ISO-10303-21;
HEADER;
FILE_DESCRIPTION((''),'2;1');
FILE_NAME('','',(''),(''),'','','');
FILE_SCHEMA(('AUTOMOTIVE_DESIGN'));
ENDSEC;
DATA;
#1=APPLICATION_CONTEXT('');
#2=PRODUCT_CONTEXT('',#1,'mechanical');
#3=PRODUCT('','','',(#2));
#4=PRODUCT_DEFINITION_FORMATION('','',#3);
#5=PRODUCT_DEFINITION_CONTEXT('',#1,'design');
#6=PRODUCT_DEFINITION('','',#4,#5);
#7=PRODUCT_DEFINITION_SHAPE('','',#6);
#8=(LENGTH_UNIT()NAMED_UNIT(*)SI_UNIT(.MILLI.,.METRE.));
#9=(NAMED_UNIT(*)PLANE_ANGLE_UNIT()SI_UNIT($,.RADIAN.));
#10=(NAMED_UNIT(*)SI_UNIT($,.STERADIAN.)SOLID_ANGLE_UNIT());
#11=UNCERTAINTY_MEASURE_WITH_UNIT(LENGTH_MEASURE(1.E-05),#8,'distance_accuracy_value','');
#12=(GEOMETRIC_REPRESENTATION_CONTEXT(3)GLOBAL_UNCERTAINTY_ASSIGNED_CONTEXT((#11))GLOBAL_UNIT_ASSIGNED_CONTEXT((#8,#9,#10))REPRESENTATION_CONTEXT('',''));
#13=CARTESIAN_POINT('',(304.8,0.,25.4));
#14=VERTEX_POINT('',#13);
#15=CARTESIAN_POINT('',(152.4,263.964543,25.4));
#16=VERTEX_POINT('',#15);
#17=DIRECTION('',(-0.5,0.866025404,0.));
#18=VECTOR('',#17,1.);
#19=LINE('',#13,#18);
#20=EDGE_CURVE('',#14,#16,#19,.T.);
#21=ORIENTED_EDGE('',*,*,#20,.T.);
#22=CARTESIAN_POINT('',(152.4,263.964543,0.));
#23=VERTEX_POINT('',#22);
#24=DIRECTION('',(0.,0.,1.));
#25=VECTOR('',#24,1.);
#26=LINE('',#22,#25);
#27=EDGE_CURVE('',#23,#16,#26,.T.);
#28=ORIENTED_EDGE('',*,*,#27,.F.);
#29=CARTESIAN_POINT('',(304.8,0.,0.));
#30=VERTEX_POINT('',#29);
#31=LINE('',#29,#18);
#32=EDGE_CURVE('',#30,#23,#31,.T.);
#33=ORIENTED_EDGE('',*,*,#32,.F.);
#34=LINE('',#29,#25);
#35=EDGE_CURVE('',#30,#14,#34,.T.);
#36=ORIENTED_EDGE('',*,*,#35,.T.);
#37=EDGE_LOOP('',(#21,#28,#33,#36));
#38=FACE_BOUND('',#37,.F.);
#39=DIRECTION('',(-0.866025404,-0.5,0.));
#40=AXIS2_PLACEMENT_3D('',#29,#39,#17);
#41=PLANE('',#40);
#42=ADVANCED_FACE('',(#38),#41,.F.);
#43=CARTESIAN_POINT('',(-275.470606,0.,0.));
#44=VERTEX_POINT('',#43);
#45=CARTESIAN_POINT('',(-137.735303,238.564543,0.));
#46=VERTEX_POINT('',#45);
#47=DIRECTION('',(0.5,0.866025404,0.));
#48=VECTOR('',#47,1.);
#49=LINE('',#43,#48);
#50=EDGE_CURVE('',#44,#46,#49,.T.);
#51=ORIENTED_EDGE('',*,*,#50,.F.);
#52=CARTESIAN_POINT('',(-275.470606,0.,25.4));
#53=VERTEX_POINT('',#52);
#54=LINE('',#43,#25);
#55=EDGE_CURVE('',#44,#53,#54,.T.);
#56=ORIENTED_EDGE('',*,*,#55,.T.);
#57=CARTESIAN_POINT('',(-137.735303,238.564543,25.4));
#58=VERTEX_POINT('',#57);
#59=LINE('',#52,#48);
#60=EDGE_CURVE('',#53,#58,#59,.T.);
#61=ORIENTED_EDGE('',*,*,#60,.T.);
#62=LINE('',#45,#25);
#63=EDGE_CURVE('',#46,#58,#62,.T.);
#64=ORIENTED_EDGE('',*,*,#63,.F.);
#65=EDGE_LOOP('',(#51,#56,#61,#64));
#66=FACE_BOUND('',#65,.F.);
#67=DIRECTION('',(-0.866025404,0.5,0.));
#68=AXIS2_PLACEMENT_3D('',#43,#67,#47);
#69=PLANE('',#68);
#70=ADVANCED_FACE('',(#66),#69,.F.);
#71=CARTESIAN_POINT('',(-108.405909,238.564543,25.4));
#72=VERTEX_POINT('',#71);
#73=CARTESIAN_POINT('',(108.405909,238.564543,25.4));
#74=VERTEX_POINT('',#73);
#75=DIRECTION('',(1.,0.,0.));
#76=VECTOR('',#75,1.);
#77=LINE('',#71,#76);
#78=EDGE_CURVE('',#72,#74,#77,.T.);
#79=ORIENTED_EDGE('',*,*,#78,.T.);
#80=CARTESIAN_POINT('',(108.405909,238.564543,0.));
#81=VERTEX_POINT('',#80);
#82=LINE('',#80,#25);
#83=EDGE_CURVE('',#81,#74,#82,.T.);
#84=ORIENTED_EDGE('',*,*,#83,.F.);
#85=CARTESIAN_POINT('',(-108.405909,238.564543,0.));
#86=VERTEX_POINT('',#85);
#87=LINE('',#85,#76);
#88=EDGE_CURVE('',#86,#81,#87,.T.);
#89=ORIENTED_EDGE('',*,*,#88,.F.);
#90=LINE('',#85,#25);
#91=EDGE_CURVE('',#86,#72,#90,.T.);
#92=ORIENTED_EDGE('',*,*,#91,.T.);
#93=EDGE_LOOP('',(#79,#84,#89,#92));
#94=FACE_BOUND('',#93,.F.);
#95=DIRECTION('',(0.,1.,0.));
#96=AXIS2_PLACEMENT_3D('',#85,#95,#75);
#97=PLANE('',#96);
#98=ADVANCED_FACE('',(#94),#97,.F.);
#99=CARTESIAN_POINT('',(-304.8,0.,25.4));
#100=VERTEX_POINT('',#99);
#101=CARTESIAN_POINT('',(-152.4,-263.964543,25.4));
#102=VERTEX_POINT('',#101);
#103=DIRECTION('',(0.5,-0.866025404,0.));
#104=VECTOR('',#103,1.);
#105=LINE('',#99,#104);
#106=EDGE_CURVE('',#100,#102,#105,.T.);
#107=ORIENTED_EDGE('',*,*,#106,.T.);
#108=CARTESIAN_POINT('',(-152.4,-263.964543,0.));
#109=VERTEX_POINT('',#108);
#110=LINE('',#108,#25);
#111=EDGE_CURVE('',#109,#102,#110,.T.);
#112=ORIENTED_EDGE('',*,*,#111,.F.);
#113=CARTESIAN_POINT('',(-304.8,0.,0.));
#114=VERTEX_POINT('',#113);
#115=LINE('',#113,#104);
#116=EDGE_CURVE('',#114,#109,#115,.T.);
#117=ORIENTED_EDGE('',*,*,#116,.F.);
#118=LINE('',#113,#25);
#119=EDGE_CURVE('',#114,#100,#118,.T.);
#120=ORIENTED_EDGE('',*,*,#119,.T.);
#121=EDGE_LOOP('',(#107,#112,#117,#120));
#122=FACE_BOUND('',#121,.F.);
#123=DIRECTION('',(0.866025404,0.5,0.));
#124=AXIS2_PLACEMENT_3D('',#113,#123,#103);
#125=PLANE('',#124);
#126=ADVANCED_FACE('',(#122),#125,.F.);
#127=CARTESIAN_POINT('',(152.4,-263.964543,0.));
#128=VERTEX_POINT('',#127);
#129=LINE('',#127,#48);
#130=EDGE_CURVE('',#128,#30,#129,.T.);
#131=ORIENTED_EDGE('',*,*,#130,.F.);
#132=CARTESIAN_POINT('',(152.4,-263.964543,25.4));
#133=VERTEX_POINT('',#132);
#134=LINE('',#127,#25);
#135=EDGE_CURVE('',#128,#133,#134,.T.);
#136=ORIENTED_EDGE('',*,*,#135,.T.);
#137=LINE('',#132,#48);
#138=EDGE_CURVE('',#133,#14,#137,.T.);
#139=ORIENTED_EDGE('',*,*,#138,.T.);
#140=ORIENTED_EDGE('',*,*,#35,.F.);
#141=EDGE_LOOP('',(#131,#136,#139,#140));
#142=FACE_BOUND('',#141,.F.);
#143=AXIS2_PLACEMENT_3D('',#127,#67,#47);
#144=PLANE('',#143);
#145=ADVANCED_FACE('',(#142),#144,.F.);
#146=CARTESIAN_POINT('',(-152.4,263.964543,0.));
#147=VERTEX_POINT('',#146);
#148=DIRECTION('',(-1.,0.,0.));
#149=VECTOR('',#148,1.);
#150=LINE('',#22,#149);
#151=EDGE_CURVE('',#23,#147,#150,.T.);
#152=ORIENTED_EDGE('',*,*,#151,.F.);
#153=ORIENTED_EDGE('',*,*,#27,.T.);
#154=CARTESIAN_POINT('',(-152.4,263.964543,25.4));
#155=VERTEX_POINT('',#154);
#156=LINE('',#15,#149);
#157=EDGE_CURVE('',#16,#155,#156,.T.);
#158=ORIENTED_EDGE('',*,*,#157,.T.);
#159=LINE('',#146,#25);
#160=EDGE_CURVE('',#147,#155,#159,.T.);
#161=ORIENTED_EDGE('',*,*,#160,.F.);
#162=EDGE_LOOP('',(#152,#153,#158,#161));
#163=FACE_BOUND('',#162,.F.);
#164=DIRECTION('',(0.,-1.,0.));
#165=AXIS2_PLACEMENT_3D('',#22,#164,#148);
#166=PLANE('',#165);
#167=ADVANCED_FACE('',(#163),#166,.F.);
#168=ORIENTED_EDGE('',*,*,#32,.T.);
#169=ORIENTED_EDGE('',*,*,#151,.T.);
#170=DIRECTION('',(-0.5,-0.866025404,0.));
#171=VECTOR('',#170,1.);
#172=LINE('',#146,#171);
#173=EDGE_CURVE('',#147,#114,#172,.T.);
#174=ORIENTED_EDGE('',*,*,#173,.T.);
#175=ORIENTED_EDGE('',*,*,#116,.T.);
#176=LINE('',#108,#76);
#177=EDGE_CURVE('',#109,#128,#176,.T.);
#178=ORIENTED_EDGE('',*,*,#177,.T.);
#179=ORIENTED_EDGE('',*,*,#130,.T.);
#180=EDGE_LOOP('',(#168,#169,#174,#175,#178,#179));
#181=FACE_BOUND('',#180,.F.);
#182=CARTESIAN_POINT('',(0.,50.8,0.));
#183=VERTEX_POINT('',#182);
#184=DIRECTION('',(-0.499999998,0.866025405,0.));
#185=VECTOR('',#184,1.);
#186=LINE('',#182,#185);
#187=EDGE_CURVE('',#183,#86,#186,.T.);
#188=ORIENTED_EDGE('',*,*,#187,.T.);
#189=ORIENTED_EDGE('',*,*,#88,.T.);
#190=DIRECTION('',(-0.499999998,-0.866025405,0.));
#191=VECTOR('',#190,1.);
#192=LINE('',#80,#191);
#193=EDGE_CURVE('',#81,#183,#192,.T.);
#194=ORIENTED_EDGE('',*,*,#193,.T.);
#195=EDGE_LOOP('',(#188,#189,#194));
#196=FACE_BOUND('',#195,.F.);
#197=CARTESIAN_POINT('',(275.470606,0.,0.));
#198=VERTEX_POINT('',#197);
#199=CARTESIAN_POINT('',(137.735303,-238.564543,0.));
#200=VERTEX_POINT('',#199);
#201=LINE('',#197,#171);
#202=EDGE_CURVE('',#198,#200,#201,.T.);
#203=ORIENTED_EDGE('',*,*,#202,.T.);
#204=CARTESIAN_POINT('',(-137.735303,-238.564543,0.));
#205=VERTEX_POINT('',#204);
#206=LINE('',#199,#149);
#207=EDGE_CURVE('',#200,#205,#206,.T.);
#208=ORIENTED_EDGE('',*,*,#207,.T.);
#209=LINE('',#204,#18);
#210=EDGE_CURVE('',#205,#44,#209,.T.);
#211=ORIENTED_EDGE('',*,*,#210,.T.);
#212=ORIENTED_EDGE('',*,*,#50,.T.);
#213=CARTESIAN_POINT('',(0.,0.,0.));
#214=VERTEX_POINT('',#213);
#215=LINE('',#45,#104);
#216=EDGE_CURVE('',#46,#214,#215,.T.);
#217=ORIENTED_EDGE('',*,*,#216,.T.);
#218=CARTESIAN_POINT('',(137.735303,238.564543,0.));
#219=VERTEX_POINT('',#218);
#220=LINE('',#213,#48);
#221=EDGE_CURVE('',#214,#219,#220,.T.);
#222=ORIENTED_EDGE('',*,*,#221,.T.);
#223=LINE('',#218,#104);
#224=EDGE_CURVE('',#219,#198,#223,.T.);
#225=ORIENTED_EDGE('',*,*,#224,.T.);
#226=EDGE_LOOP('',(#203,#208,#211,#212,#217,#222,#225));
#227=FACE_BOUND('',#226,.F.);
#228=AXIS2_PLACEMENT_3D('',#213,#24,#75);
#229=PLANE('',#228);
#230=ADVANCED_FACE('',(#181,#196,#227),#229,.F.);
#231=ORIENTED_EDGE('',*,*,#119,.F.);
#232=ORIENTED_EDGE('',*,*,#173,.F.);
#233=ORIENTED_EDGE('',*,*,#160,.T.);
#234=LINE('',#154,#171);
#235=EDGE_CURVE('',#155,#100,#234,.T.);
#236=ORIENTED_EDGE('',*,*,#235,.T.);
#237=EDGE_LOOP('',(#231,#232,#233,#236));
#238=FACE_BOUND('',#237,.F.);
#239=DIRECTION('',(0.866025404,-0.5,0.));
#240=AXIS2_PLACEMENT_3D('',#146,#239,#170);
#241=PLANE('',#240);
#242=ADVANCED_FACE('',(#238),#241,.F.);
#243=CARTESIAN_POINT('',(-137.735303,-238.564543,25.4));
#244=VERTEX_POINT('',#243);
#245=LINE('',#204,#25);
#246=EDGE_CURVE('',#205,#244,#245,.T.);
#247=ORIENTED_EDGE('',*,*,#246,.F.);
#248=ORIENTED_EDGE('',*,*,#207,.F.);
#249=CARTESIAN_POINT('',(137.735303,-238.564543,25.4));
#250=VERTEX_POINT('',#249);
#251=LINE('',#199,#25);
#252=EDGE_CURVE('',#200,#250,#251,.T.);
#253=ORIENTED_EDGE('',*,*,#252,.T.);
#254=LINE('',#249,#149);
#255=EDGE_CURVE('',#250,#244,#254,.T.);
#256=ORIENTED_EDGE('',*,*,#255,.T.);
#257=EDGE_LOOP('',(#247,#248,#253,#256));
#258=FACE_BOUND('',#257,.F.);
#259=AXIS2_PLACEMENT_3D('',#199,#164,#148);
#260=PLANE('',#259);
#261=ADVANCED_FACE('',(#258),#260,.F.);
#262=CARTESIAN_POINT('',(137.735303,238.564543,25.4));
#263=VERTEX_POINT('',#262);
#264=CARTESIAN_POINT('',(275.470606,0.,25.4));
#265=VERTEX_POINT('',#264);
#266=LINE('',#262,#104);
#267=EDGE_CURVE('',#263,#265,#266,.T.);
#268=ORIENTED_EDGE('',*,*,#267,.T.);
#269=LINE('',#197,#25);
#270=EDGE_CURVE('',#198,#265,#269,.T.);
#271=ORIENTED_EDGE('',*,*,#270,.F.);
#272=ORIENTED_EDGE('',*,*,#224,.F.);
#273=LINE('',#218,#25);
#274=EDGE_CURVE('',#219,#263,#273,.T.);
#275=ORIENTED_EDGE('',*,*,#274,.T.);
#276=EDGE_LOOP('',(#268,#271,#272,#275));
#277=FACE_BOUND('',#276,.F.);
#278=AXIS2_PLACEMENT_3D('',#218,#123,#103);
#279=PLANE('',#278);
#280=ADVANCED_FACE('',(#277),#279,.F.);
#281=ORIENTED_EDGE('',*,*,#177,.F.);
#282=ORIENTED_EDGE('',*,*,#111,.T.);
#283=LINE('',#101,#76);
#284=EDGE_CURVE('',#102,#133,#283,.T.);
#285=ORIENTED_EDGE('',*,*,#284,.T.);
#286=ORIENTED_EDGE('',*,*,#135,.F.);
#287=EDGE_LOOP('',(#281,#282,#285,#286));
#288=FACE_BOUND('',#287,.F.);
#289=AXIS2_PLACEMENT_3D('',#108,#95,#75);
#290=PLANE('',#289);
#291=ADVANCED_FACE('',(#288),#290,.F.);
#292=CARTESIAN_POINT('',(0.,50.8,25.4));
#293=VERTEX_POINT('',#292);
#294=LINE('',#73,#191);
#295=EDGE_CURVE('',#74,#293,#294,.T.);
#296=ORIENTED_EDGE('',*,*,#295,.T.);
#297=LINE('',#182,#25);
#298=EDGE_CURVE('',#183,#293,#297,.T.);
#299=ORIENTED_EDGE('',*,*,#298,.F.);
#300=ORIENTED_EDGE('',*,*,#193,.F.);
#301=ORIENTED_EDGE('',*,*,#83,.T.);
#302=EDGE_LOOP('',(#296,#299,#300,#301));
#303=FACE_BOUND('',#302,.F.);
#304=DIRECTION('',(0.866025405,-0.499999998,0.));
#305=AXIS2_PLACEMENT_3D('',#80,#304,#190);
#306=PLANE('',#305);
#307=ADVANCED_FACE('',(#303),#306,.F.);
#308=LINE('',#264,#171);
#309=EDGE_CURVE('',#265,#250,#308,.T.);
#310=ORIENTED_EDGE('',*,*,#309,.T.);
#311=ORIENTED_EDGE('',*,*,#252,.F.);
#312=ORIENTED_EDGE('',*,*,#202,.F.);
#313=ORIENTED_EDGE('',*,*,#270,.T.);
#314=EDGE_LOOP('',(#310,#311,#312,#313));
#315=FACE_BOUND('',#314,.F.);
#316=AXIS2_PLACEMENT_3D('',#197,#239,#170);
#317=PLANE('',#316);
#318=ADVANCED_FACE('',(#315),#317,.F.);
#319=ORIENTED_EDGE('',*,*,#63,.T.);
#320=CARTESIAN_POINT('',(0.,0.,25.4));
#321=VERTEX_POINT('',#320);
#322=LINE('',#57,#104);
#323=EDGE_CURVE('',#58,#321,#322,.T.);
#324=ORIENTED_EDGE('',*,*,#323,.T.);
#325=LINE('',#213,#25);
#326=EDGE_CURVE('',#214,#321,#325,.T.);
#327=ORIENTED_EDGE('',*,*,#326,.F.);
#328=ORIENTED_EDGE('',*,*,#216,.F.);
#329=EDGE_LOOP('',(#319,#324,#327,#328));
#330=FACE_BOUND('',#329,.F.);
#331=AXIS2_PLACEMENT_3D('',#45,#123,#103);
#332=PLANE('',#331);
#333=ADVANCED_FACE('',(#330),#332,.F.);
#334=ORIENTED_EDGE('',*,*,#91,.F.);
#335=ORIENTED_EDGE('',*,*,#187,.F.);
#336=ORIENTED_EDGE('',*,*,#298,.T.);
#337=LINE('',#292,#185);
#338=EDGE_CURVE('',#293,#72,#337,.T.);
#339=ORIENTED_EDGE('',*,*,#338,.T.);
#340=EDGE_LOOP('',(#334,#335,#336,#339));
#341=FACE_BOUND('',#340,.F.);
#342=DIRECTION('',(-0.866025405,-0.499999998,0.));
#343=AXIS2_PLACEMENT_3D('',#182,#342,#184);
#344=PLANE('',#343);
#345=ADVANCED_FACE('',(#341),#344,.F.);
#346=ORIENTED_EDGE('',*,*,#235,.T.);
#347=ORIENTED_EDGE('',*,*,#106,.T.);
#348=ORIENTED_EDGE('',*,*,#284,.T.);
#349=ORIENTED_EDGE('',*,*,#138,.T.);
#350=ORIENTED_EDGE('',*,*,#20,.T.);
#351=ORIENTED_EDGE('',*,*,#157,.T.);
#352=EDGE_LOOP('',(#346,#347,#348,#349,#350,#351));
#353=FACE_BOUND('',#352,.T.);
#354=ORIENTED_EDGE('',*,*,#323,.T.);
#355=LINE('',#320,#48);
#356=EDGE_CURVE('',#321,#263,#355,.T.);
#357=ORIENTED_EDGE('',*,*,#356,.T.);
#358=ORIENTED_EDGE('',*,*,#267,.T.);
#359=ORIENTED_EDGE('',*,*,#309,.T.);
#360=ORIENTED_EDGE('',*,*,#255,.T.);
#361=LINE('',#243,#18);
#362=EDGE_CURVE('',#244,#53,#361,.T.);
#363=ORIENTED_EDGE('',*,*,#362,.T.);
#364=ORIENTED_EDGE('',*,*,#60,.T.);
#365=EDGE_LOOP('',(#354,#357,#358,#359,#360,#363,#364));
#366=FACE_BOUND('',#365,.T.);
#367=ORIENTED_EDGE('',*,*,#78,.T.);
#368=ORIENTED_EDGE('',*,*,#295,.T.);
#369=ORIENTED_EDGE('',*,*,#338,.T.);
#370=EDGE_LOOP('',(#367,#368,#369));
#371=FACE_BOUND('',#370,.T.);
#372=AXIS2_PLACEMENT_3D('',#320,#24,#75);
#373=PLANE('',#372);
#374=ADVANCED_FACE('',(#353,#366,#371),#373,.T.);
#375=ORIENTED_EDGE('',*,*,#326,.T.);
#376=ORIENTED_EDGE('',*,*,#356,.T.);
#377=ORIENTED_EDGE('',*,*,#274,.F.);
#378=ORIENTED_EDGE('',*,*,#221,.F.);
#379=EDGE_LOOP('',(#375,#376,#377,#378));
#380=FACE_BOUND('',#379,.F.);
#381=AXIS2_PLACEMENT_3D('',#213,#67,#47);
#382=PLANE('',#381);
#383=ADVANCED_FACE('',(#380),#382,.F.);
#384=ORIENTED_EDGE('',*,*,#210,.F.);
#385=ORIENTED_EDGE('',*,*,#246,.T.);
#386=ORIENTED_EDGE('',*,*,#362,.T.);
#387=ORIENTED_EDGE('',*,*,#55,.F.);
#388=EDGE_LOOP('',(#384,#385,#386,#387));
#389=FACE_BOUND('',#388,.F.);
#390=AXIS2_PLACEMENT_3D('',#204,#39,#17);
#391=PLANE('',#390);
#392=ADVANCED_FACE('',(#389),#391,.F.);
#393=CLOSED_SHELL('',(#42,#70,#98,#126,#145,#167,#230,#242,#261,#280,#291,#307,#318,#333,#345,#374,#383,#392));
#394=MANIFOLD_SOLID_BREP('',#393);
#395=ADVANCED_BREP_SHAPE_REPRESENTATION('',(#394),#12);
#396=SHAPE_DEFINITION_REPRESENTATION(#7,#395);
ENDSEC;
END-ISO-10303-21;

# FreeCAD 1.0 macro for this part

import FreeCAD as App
import Part
import Sketcher

V = App.Vector
Q = App.Units.Quantity

doc = App.newDocument("Part")
body = doc.addObject("PartDesign::Body", "Body")

# Sketch on XY plane
sketch1 = doc.addObject("Sketcher::SketchObject", "Sketch")
body.addObject(sketch1)
sketch1.AttachmentSupport = (doc.XY_Plane, [""])
sketch1.MapMode = "FlatFace"
sketch1.addGeometry(Part.LineSegment(V(152, 264, 0), V(-152, 264, 0)), False)
sketch1.addGeometry(Part.LineSegment(V(-152, 264, 0), V(-305, 0, 0)), False)
sketch1.addGeometry(Part.LineSegment(V(-305, 0, 0), V(-152, -264, 0)), False)
sketch1.addGeometry(Part.LineSegment(V(-152, -264, 0), V(152, -264, 0)), False)
sketch1.addGeometry(Part.LineSegment(V(152, -264, 0), V(305, 0, 0)), False)
sketch1.addGeometry(Part.LineSegment(V(305, 0, 0), V(152, 264, 0)), False)
sketch1.addGeometry(Part.LineSegment(V(138, -239, 0), V(-138, -239, 0)), False)
sketch1.addGeometry(Part.LineSegment(V(-138, -239, 0), V(-275, 0, 0)), False)
sketch1.addGeometry(Part.LineSegment(V(-275, 0, 0), V(-138, 239, 0)), False)
sketch1.addGeometry(Part.LineSegment(V(-138, 239, 0), V(0, 0, 0)), False)
sketch1.addGeometry(Part.LineSegment(V(0, 0, 0), V(138, 239, 0)), False)
sketch1.addGeometry(Part.LineSegment(V(138, 239, 0), V(275, 0, 0)), False)
sketch1.addGeometry(Part.LineSegment(V(275, 0, 0), V(138, -239, 0)), False)
sketch1.addGeometry(Part.LineSegment(V(108, 239, 0), V(0, 51, 0)), False)
sketch1.addGeometry(Part.LineSegment(V(0, 51, 0), V(-108, 239, 0)), False)
sketch1.addGeometry(Part.LineSegment(V(-108, 239, 0), V(108, 239, 0)), False)
sketch1.addConstraint(Sketcher.Constraint("Coincident", 0, 2, 1, 1))
sketch1.addConstraint(Sketcher.Constraint("Coincident", 1, 2, 2, 1))
sketch1.addConstraint(Sketcher.Constraint("Coincident", 2, 2, 3, 1))
sketch1.addConstraint(Sketcher.Constraint("Coincident", 3, 2, 4, 1))
sketch1.addConstraint(Sketcher.Constraint("Coincident", 4, 2, 5, 1))
sketch1.addConstraint(Sketcher.Constraint("Coincident", 5, 2, 0, 1))
sketch1.addConstraint(Sketcher.Constraint("Coincident", 6, 2, 7, 1))
sketch1.addConstraint(Sketcher.Constraint("Coincident", 7, 2, 8, 1))
sketch1.addConstraint(Sketcher.Constraint("Coincident", 8, 2, 9, 1))
sketch1.addConstraint(Sketcher.Constraint("Coincident", 9, 2, 10, 1))
sketch1.addConstraint(Sketcher.Constraint("Coincident", 10, 2, 11, 1))
sketch1.addConstraint(Sketcher.Constraint("Coincident", 11, 2, 12, 1))
sketch1.addConstraint(Sketcher.Constraint("Coincident", 12, 2, 6, 1))
sketch1.addConstraint(Sketcher.Constraint("Coincident", 13, 2, 14, 1))
sketch1.addConstraint(Sketcher.Constraint("Coincident", 14, 2, 15, 1))
sketch1.addConstraint(Sketcher.Constraint("Coincident", 15, 2, 13, 1))
sketch1.addConstraint(Sketcher.Constraint("Horizontal", 0))
sketch1.addConstraint(Sketcher.Constraint("Horizontal", 3))
sketch1.addConstraint(Sketcher.Constraint("Horizontal", 6))
sketch1.addConstraint(Sketcher.Constraint("Horizontal", 15))
sketch1.addConstraint(Sketcher.Constraint("Coincident", 9, 2, -1, 1))
sketch1.addConstraint(Sketcher.Constraint("Symmetric", 0, 2, 3, 2, -1, 1))
sketch1.addConstraint(Sketcher.Constraint("Symmetric", 1, 2, 4, 2, -1, 1))
sketch1.addConstraint(Sketcher.Constraint("Symmetric", 6, 2, 10, 2, -1, 1))
sketch1.addConstraint(Sketcher.Constraint("Symmetric", 7, 2, 11, 2, -1, 1))
sketch1.addConstraint(Sketcher.Constraint("Symmetric", 8, 2, 12, 2, -1, 1))
sketch1.addConstraint(Sketcher.Constraint("PointOnObject", 1, 2, -1))
sketch1.addConstraint(Sketcher.Constraint("PointOnObject", 7, 2, -1))
sketch1.addConstraint(Sketcher.Constraint("PointOnObject", 13, 2, -2))
sketch1.addConstraint(Sketcher.Constraint("Parallel", 2, 5))
sketch1.addConstraint(Sketcher.Constraint("Parallel", 5, 7))
sketch1.addConstraint(Sketcher.Constraint("Parallel", 4, 8))
sketch1.addConstraint(Sketcher.Constraint("Parallel", 7, 9))
sketch1.addConstraint(Sketcher.Constraint("Parallel", 12, 13))
sketch1.addConstraint(Sketcher.Constraint("Parallel", 11, 14))
sketch1.addConstraint(Sketcher.Constraint("Horizontal", 10, 2, 14, 2))
sketch1.addConstraint(Sketcher.Constraint("Vertical", 0, 2, 2, 2))
sketch1.addConstraint(Sketcher.Constraint("DistanceX", 0, 2, 0, 1, Q("12 in")))
sketch1.addConstraint(Sketcher.Constraint("Distance", 1, Q("12 in")))
sketch1.addConstraint(Sketcher.Constraint("DistanceX", 1, 2, -1, 1, Q("12 in")))
sketch1.addConstraint(Sketcher.Constraint("DistanceY", -1, 1, 13, 2, Q("2 in")))
sketch1.addConstraint(Sketcher.Constraint("DistanceY", 2, 2, 6, 2, Q("1 in")))
pad1 = doc.addObject("PartDesign::Pad", "Pad")
body.addObject(pad1)
pad1.Profile = sketch1
pad1.Length = Q("1 in")

doc.recompute()
